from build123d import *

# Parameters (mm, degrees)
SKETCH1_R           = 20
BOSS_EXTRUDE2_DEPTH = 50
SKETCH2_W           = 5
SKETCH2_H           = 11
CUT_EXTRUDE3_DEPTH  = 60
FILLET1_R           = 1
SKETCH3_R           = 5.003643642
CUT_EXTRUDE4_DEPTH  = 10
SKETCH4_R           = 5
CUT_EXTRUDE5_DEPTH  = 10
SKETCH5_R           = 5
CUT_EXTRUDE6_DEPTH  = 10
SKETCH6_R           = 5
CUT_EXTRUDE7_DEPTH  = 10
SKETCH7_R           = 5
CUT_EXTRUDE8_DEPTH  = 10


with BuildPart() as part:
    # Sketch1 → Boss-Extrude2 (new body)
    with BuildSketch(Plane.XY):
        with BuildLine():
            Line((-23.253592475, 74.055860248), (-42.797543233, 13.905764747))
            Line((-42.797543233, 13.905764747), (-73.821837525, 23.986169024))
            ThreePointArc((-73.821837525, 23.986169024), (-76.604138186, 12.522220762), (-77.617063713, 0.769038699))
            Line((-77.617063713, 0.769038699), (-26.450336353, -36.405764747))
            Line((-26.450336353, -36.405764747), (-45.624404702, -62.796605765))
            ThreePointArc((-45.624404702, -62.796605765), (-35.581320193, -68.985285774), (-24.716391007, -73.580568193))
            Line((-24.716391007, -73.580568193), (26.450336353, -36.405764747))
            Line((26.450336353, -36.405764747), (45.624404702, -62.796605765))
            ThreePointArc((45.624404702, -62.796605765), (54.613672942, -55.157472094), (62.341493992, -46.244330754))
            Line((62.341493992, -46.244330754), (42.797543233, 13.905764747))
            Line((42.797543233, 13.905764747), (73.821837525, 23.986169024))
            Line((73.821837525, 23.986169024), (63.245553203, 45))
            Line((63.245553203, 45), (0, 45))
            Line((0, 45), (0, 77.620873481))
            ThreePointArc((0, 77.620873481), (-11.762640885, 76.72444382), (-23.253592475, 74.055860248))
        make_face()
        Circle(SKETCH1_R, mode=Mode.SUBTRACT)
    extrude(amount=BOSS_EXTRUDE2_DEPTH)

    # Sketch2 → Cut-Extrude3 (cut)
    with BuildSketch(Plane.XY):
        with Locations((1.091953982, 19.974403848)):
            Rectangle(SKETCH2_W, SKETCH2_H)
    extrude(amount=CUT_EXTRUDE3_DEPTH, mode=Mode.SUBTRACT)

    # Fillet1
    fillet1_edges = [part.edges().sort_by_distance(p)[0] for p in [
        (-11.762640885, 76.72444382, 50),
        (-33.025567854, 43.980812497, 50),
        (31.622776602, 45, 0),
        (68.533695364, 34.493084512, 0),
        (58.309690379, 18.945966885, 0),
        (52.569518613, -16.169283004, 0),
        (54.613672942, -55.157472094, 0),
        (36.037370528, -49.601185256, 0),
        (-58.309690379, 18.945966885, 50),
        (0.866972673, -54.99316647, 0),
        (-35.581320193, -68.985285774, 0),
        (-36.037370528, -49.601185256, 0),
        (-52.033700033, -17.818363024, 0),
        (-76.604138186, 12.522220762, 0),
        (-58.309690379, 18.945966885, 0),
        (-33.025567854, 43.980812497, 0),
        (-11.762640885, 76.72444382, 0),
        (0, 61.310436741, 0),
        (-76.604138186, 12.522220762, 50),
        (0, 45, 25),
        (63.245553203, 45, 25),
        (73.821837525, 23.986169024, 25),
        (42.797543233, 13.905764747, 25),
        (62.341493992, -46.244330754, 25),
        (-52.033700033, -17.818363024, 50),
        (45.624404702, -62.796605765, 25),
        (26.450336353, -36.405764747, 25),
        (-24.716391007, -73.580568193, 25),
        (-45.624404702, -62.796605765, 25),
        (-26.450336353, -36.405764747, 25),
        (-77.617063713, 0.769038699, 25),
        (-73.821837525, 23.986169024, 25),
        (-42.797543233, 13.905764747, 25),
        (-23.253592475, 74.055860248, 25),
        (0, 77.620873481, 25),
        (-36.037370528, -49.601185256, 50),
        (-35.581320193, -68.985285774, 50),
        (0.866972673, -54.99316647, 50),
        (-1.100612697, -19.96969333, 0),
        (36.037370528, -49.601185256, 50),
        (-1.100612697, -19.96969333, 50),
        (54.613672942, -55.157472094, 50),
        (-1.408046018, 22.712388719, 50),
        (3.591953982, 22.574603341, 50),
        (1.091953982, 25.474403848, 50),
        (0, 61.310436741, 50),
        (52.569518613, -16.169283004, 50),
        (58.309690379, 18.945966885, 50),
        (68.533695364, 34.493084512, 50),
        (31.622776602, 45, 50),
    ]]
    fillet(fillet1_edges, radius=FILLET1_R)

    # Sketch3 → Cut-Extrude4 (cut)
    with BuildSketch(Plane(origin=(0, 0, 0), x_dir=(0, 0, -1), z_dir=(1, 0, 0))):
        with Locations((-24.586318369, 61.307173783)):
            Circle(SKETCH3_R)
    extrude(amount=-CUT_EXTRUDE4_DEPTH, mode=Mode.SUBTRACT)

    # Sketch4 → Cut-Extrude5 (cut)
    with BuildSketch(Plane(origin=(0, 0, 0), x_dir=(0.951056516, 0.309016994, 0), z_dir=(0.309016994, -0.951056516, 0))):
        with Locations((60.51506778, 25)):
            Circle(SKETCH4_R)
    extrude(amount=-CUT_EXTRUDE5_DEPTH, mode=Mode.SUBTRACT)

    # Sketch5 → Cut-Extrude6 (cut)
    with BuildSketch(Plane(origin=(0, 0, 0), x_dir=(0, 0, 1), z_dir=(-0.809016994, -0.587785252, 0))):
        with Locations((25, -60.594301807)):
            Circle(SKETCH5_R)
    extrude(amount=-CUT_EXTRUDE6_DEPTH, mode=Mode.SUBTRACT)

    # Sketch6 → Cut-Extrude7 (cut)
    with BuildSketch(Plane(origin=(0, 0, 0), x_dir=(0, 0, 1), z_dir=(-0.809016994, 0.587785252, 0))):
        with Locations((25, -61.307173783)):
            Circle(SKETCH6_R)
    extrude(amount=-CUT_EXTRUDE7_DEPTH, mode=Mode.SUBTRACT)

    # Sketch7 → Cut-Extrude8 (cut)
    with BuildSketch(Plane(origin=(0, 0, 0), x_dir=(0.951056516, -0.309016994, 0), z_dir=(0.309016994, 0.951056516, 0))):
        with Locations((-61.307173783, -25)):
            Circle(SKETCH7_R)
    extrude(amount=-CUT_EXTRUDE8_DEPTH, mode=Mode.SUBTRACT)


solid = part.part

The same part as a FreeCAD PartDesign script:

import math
import FreeCAD as App
import Part
import Sketcher

V = App.Vector
Q = App.Units.Quantity


def edges_at(feature, points):
    """Names of the edges that pass closest to the given points."""
    edges = feature.Shape.Edges
    near = lambda p: min(range(len(edges)), key=lambda i: edges[i].distToShape(Part.Vertex(*p))[0])
    return sorted({f"Edge{near(p) + 1}" for p in points})

doc = App.newDocument("Part")
body = doc.addObject("PartDesign::Body", "Body")

# Sketch on XY plane
sketch1 = body.newObject("Sketcher::SketchObject", "Sketch")
sketch1.AttachmentSupport = (doc.getObject("XY_Plane"), [""])
sketch1.MapMode = "FlatFace"
sketch1.addGeometry(Part.LineSegment(V(-23.253592, 74.05586, 0), V(-42.797543, 13.905765, 0)), False)
sketch1.addGeometry(Part.LineSegment(V(-42.797543, 13.905765, 0), V(-73.821838, 23.986169, 0)), False)
sketch1.addGeometry(Part.ArcOfCircle(Part.Circle(V(0, 0, 0), V(0, 0, 1), 77.620873), math.radians(162), math.radians(179.432325)), False)
sketch1.addGeometry(Part.LineSegment(V(-77.617064, 0.769039, 0), V(-26.450336, -36.405765, 0)), False)
sketch1.addGeometry(Part.LineSegment(V(-26.450336, -36.405765, 0), V(-45.624405, -62.796606, 0)), False)
sketch1.addGeometry(Part.ArcOfCircle(Part.Circle(V(0, 0, 0), V(0, 0, 1), 77.620873), math.radians(-126), math.radians(-108.567675)), False)
sketch1.addGeometry(Part.LineSegment(V(-24.716391, -73.580568, 0), V(26.450336, -36.405765, 0)), False)
sketch1.addGeometry(Part.LineSegment(V(26.450336, -36.405765, 0), V(45.624405, -62.796606, 0)), False)
sketch1.addGeometry(Part.ArcOfCircle(Part.Circle(V(0, 0, 0), V(0, 0, 1), 77.620873), math.radians(-54), math.radians(-36.567675)), False)
sketch1.addGeometry(Part.LineSegment(V(62.341494, -46.244331, 0), V(42.797543, 13.905765, 0)), False)
sketch1.addGeometry(Part.LineSegment(V(42.797543, 13.905765, 0), V(73.821838, 23.986169, 0)), False)
sketch1.addGeometry(Part.LineSegment(V(73.821838, 23.986169, 0), V(63.245553, 45, 0)), False)
sketch1.addGeometry(Part.LineSegment(V(63.245553, 45, 0), V(0, 45, 0)), False)
sketch1.addGeometry(Part.LineSegment(V(0, 45, 0), V(0, 77.620873, 0)), False)
sketch1.addGeometry(Part.ArcOfCircle(Part.Circle(V(0, 0, 0), V(0, 0, 1), 77.620873), math.radians(90), math.radians(107.432325)), False)
sketch1.addGeometry(Part.Circle(V(0, 0, 0), V(0, 0, 1), 20), False)
sketch1.addConstraint(Sketcher.Constraint("Coincident", 0, 2, 1, 1))
sketch1.addConstraint(Sketcher.Constraint("Coincident", 1, 2, 2, 1))
sketch1.addConstraint(Sketcher.Constraint("Coincident", 2, 2, 3, 1))
sketch1.addConstraint(Sketcher.Constraint("Coincident", 3, 2, 4, 1))
sketch1.addConstraint(Sketcher.Constraint("Coincident", 4, 2, 5, 1))
sketch1.addConstraint(Sketcher.Constraint("Coincident", 5, 2, 6, 1))
sketch1.addConstraint(Sketcher.Constraint("Coincident", 6, 2, 7, 1))
sketch1.addConstraint(Sketcher.Constraint("Coincident", 7, 2, 8, 1))
sketch1.addConstraint(Sketcher.Constraint("Coincident", 8, 2, 9, 1))
sketch1.addConstraint(Sketcher.Constraint("Coincident", 9, 2, 10, 1))
sketch1.addConstraint(Sketcher.Constraint("Coincident", 10, 2, 11, 1))
sketch1.addConstraint(Sketcher.Constraint("Coincident", 11, 2, 12, 1))
sketch1.addConstraint(Sketcher.Constraint("Coincident", 12, 2, 13, 1))
sketch1.addConstraint(Sketcher.Constraint("Coincident", 13, 2, 14, 1))
sketch1.addConstraint(Sketcher.Constraint("Coincident", 14, 2, 0, 1))
sketch1.addConstraint(Sketcher.Constraint("Horizontal", 12))
sketch1.addConstraint(Sketcher.Constraint("Vertical", 13))
sketch1.addConstraint(Sketcher.Constraint("Coincident", 2, 3, -1, 1))
sketch1.addConstraint(Sketcher.Constraint("Coincident", 5, 3, -1, 1))
sketch1.addConstraint(Sketcher.Constraint("Coincident", 8, 3, -1, 1))
sketch1.addConstraint(Sketcher.Constraint("Coincident", 14, 3, -1, 1))
sketch1.addConstraint(Sketcher.Constraint("Coincident", 15, 3, -1, 1))
sketch1.addConstraint(Sketcher.Constraint("Equal", 2, 5))
sketch1.addConstraint(Sketcher.Constraint("Equal", 5, 8))
sketch1.addConstraint(Sketcher.Constraint("Equal", 8, 14))
sketch1.addConstraint(Sketcher.Constraint("Symmetric", 3, 2, 6, 2, -2))
sketch1.addConstraint(Sketcher.Constraint("Symmetric", 0, 2, 9, 2, -2))
sketch1.addConstraint(Sketcher.Constraint("Symmetric", 1, 2, 10, 2, -2))
sketch1.addConstraint(Sketcher.Constraint("PointOnObject", 12, 2, -2))
sketch1.addConstraint(Sketcher.Constraint("Perpendicular", 0, 1))
sketch1.addConstraint(Sketcher.Constraint("Perpendicular", 3, 4))
sketch1.addConstraint(Sketcher.Constraint("Perpendicular", 6, 7))
sketch1.addConstraint(Sketcher.Constraint("Perpendicular", 9, 10))
sketch1.addConstraint(Sketcher.Constraint("Horizontal", 4, 2, 7, 2))
sketch1.addConstraint(Sketcher.Constraint("Equal", 0, 3))
sketch1.addConstraint(Sketcher.Constraint("Equal", 1, 4))
sketch1.addConstraint(Sketcher.Constraint("Equal", 3, 6))
sketch1.addConstraint(Sketcher.Constraint("Diameter", 15, Q("40 mm")))
sketch1.addConstraint(Sketcher.Constraint("Angle", 0, Q("-108 deg")))
sketch1.addConstraint(Sketcher.Constraint("Angle", 3, Q("-36 deg")))
sketch1.addConstraint(Sketcher.Constraint("DistanceY", -1, 1, 11, 2, Q("45 mm")))
sketch1.addConstraint(Sketcher.Constraint("Radius", 2, Q("77.620873 mm")))
sketch1.addConstraint(Sketcher.Constraint("DistanceY", 8, 2, 10, 2, Q("70.2305 mm")))
sketch1.addConstraint(Sketcher.Constraint("Distance", 11, Q("23.525282 mm")))
pad1 = body.newObject("PartDesign::Pad", "Pad")
pad1.Profile = sketch1
pad1.Length = 50

# Sketch on XY plane
sketch2 = body.newObject("Sketcher::SketchObject", "Sketch001")
sketch2.AttachmentSupport = (doc.getObject("XY_Plane"), [""])
sketch2.MapMode = "FlatFace"
sketch2.addGeometry(Part.LineSegment(V(-1.408046, 25.474404, 0), V(-1.408046, 14.474404, 0)), False)
sketch2.addGeometry(Part.LineSegment(V(-1.408046, 14.474404, 0), V(3.591954, 14.474404, 0)), False)
sketch2.addGeometry(Part.LineSegment(V(3.591954, 14.474404, 0), V(3.591954, 25.474404, 0)), False)
sketch2.addGeometry(Part.LineSegment(V(3.591954, 25.474404, 0), V(-1.408046, 25.474404, 0)), False)
sketch2.addConstraint(Sketcher.Constraint("Coincident", 0, 2, 1, 1))
sketch2.addConstraint(Sketcher.Constraint("Coincident", 1, 2, 2, 1))
sketch2.addConstraint(Sketcher.Constraint("Coincident", 2, 2, 3, 1))
sketch2.addConstraint(Sketcher.Constraint("Coincident", 3, 2, 0, 1))
sketch2.addConstraint(Sketcher.Constraint("Vertical", 0))
sketch2.addConstraint(Sketcher.Constraint("Horizontal", 1))
sketch2.addConstraint(Sketcher.Constraint("Vertical", 2))
sketch2.addConstraint(Sketcher.Constraint("Horizontal", 3))
sketch2.addConstraint(Sketcher.Constraint("DistanceX", 1, 1, 1, 2, Q("5 mm")))
sketch2.addConstraint(Sketcher.Constraint("DistanceY", 0, 2, 0, 1, Q("11 mm")))
sketch2.addConstraint(Sketcher.Constraint("DistanceX", 0, 2, -1, 1, Q("1.408046 mm")))
sketch2.addConstraint(Sketcher.Constraint("DistanceY", -1, 1, 0, 2, Q("14.474404 mm")))
pocket1 = body.newObject("PartDesign::Pocket", "Pocket")
pocket1.Profile = sketch2
pocket1.Length = 60
pocket1.Reversed = True
doc.recompute()

fillet = body.newObject("PartDesign::Fillet", "Fillet")
fillet.Base = (pocket1, edges_at(pocket1, [
    (-11.763, 76.724, 50),
    (-33.026, 43.981, 50),
    (31.623, 45, 0),
    (68.534, 34.493, 0),
    (58.31, 18.946, 0),
    (52.57, -16.169, 0),
    (54.614, -55.157, 0),
    (36.037, -49.601, 0),
    (-58.31, 18.946, 50),
    (0.867, -54.993, 0),
    (-35.581, -68.985, 0),
    (-36.037, -49.601, 0),
    (-52.034, -17.818, 0),
    (-76.604, 12.522, 0),
    (-58.31, 18.946, 0),
    (-33.026, 43.981, 0),
    (-11.763, 76.724, 0),
    (0, 61.31, 0),
    (-76.604, 12.522, 50),
    (0, 45, 25),
    (63.246, 45, 25),
    (73.822, 23.986, 25),
    (42.798, 13.906, 25),
    (62.341, -46.244, 25),
    (-52.034, -17.818, 50),
    (45.624, -62.797, 25),
    (26.45, -36.406, 25),
    (-24.716, -73.581, 25),
    (-45.624, -62.797, 25),
    (-26.45, -36.406, 25),
    (-77.617, 0.769, 25),
    (-73.822, 23.986, 25),
    (-42.798, 13.906, 25),
    (-23.254, 74.056, 25),
    (0, 77.621, 25),
    (-36.037, -49.601, 50),
    (-35.581, -68.985, 50),
    (0.867, -54.993, 50),
    (-1.101, -19.97, 0),
    (36.037, -49.601, 50),
    (-1.101, -19.97, 50),
    (54.614, -55.157, 50),
    (-1.408, 22.712, 50),
    (3.592, 22.575, 50),
    (1.092, 25.474, 50),
    (0, 61.31, 50),
    (52.57, -16.169, 50),
    (58.31, 18.946, 50),
    (68.534, 34.493, 50),
    (31.623, 45, 50),
]))
fillet.Radius = 1

# Sketch on YZ plane
sketch3 = body.newObject("Sketcher::SketchObject", "Sketch002")
sketch3.AttachmentSupport = (doc.getObject("YZ_Plane"), [""])
sketch3.MapMode = "FlatFace"
sketch3.addGeometry(Part.Circle(V(61.307174, 24.586318, 0), V(0, 0, 1), 5.003644), False)
sketch3.addConstraint(Sketcher.Constraint("Diameter", 0, Q("10.007287 mm")))
sketch3.addConstraint(Sketcher.Constraint("DistanceY", -1, 1, 0, 3, Q("24.586318 mm")))
sketch3.addConstraint(Sketcher.Constraint("DistanceX", -1, 1, 0, 3, Q("61.307174 mm")))
pocket2 = body.newObject("PartDesign::Pocket", "Pocket001")
pocket2.Profile = sketch3
pocket2.Length = 10

# Sketch on an angled plane
sketch4 = body.newObject("Sketcher::SketchObject", "Sketch003")
sketch4.Placement = App.Placement(V(0, 0, 0), App.Rotation(V(0.951056516, 0.309016994, 0), V(0, 0, 0.999999999), V(0.309016994, -0.951056516, 0), "ZXY"))
sketch4.addGeometry(Part.Circle(V(60.515068, 25, 0), V(0, 0, 1), 5), False)
sketch4.addConstraint(Sketcher.Constraint("Diameter", 0, Q("10 mm")))
sketch4.addConstraint(Sketcher.Constraint("DistanceY", -1, 1, 0, 3, Q("25 mm")))
sketch4.addConstraint(Sketcher.Constraint("DistanceX", -1, 1, 0, 3, Q("60.515068 mm")))
pocket3 = body.newObject("PartDesign::Pocket", "Pocket002")
pocket3.Profile = sketch4
pocket3.Length = 10

# Sketch on an angled plane
sketch5 = body.newObject("Sketcher::SketchObject", "Sketch004")
sketch5.Placement = App.Placement(V(0, 0, 0), App.Rotation(V(0, 0, 1), V(-0.587785252, 0.809016994, 0), V(-0.809016994, -0.587785252, 0), "ZXY"))
sketch5.addGeometry(Part.Circle(V(25, -60.594302, 0), V(0, 0, 1), 5), False)
sketch5.addConstraint(Sketcher.Constraint("Diameter", 0, Q("10 mm")))
sketch5.addConstraint(Sketcher.Constraint("DistanceX", -1, 1, 0, 3, Q("25 mm")))
sketch5.addConstraint(Sketcher.Constraint("DistanceY", 0, 3, -1, 1, Q("60.594302 mm")))
pocket4 = body.newObject("PartDesign::Pocket", "Pocket003")
pocket4.Profile = sketch5
pocket4.Length = 10

# Sketch on an angled plane
sketch6 = body.newObject("Sketcher::SketchObject", "Sketch005")
sketch6.Placement = App.Placement(V(0, 0, 0), App.Rotation(V(0, 0, 1), V(0.587785252, 0.809016994, 0), V(-0.809016994, 0.587785252, 0), "ZXY"))
sketch6.addGeometry(Part.Circle(V(25, -61.307174, 0), V(0, 0, 1), 5), False)
sketch6.addConstraint(Sketcher.Constraint("Diameter", 0, Q("10 mm")))
sketch6.addConstraint(Sketcher.Constraint("DistanceX", -1, 1, 0, 3, Q("25 mm")))
sketch6.addConstraint(Sketcher.Constraint("DistanceY", 0, 3, -1, 1, Q("61.307174 mm")))
pocket5 = body.newObject("PartDesign::Pocket", "Pocket004")
pocket5.Profile = sketch6
pocket5.Length = 10

# Sketch on an angled plane
sketch7 = body.newObject("Sketcher::SketchObject", "Sketch006")
sketch7.Placement = App.Placement(V(0, 0, 0), App.Rotation(V(0.951056516, -0.309016994, 0), V(0, 0, -0.999999999), V(0.309016994, 0.951056516, 0), "ZXY"))
sketch7.addGeometry(Part.Circle(V(-61.307174, -25, 0), V(0, 0, 1), 5), False)
sketch7.addConstraint(Sketcher.Constraint("Diameter", 0, Q("10 mm")))
sketch7.addConstraint(Sketcher.Constraint("DistanceY", 0, 3, -1, 1, Q("25 mm")))
sketch7.addConstraint(Sketcher.Constraint("DistanceX", 0, 3, -1, 1, Q("61.307174 mm")))
pocket6 = body.newObject("PartDesign::Pocket", "Pocket005")
pocket6.Profile = sketch7
pocket6.Length = 10

doc.recompute()
